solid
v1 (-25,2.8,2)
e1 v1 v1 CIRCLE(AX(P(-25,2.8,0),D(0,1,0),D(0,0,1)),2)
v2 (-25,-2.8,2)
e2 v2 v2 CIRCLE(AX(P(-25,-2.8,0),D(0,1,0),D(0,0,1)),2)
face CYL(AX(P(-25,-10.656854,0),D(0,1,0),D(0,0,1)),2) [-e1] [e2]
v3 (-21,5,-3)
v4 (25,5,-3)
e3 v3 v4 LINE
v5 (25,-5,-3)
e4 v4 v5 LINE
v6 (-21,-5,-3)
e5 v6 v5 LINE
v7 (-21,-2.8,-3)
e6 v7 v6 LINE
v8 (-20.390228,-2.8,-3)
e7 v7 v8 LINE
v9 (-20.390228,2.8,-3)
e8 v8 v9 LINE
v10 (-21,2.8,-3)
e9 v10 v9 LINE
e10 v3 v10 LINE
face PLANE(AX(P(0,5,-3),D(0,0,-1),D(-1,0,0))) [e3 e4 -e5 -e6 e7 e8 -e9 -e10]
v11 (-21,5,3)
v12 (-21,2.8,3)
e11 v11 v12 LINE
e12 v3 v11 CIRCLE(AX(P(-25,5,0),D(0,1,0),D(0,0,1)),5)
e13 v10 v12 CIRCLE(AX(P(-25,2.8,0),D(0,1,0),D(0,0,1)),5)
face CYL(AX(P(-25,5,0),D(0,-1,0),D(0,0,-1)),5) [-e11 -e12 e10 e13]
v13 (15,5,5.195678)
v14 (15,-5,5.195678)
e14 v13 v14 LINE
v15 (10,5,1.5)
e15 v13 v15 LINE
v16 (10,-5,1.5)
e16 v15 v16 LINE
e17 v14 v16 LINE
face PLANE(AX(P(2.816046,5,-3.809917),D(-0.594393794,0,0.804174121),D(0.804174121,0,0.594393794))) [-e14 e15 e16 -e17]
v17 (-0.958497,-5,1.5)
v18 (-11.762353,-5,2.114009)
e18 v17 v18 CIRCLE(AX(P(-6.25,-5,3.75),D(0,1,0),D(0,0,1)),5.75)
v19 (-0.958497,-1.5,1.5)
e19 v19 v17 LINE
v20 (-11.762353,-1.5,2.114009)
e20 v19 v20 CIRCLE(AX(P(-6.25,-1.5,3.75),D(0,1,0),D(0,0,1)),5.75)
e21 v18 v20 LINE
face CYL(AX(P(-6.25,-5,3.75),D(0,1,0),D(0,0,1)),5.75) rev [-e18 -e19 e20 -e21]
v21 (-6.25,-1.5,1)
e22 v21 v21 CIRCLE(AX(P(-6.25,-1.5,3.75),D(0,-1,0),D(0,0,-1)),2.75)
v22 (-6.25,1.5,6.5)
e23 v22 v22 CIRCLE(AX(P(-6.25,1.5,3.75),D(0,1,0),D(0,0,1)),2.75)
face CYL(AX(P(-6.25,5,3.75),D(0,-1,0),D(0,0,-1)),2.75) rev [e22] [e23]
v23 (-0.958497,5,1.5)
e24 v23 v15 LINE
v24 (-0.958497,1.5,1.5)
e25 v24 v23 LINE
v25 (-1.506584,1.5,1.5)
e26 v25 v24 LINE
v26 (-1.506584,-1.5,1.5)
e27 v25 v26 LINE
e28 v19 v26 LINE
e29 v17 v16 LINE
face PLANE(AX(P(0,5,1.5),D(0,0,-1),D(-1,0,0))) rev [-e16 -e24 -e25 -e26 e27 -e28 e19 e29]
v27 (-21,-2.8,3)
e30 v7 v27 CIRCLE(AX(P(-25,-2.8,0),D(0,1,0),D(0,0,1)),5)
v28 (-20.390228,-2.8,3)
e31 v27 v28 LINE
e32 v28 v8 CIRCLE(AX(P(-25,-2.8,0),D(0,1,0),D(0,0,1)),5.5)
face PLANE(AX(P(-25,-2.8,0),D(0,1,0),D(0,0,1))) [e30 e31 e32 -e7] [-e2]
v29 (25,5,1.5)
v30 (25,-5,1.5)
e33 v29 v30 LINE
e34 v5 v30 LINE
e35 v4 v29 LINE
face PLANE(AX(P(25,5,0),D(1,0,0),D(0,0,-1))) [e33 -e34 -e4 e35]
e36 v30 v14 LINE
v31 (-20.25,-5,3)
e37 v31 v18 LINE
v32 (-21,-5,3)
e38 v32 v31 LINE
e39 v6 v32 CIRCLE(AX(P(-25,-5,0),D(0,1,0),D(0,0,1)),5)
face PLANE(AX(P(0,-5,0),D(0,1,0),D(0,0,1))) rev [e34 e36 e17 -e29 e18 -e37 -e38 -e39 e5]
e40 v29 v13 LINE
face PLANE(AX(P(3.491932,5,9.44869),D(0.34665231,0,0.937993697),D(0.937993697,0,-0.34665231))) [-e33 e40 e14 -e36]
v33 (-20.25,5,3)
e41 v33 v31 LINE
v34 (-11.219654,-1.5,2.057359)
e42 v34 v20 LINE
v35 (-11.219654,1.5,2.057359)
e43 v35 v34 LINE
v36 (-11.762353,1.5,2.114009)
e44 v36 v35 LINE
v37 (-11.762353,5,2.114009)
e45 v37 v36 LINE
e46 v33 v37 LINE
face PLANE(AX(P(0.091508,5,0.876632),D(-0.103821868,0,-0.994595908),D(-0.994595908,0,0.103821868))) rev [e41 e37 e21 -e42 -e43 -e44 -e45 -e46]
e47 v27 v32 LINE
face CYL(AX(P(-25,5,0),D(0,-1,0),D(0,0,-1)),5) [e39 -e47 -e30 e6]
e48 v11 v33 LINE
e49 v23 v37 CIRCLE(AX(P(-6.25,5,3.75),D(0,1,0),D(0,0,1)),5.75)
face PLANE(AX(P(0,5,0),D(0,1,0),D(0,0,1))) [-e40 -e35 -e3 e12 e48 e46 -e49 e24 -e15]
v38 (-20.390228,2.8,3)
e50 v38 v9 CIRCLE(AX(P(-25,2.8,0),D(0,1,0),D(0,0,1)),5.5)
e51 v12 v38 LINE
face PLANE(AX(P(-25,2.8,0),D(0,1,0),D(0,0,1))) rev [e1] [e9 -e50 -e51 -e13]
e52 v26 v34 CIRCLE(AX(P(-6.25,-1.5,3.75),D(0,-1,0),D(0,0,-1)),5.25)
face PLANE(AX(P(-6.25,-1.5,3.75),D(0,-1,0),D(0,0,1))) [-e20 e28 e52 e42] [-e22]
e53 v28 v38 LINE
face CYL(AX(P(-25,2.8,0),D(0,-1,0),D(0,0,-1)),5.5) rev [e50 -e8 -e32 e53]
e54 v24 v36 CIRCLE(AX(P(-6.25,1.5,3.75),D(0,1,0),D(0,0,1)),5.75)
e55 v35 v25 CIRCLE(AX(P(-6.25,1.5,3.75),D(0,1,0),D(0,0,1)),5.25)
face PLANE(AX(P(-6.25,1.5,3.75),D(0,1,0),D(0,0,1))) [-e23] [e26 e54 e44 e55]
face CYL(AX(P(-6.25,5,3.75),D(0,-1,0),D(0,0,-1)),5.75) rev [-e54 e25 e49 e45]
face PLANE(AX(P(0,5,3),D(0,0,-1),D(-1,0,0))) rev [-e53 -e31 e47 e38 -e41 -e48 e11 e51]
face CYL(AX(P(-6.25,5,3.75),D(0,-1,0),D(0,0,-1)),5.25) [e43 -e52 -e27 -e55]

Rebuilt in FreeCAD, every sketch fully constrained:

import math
import FreeCAD as App
import Part
import Sketcher

V = App.Vector

doc = App.newDocument("Part")
params = doc.addObject("Spreadsheet::Sheet", "Params")
for row, (alias, value) in enumerate([
    ("sketch1_diameter", "4 mm"),
    ("sketch1_radius", "5 mm"),
    ("sketch1_diameter2", "5.5 mm"),
    ("sketch1_width", "46 mm"),
    ("sketch1_radius2", "5.25 mm"),
    ("pad1_length", "10 mm"),
    ("sketch2_diameter", "11.5 mm"),
    ("sketch3_diameter", "11 mm"),
    ("pocket2_length", "2.8 mm"),
    ("pocket2_length2", "2.8 mm"),
    ("sketch4_diameter", "4 mm"),
    ("pad2_length", "10 mm"),
], start=1):
    params.set(f"A{row}", alias)
    params.set(f"B{row}", "=" + value)
    params.setAlias(f"B{row}", alias)

body = doc.addObject("PartDesign::Body", "Body")

# Sketch on XZ plane
sketch1 = body.newObject("Sketcher::SketchObject", "Sketch")
sketch1.AttachmentSupport = (doc.getObject("XZ_Plane"), [""])
sketch1.MapMode = "FlatFace"
sketch1.addGeometry([
    Part.ArcOfCircle(Part.Circle(V(-6.2, 3.8, 0), V(0, 0, 1), 5.2), math.radians(-25), math.radians(199)),  # 0
    Part.LineSegment(V(-1.5, 1.5, 0), V(10, 1.5, 0)),  # 1
    Part.LineSegment(V(10, 1.5, 0), V(15, 5.2, 0)),  # 2
    Part.LineSegment(V(15, 5.2, 0), V(25, 1.5, 0)),  # 3
    Part.LineSegment(V(25, 1.5, 0), V(25, -3, 0)),  # 4
    Part.LineSegment(V(25, -3, 0), V(-21, -3, 0)),  # 5
    Part.ArcOfCircle(Part.Circle(V(-25, 0, 0), V(0, 0, 1), 5), math.radians(37), math.radians(323)),  # 6
    Part.LineSegment(V(-21, 3, 0), V(-20.2, 3, 0)),  # 7
    Part.LineSegment(V(-20.2, 3, 0), V(-11.2, 2.1, 0)),  # 8
    Part.Circle(V(-6.2, 3.8, 0), V(0, 0, 1), 2.8),  # 9
    Part.Circle(V(-25, 0, 0), V(0, 0, 1), 2),  # 10
], False)
sketch1.addConstraint([
    Sketcher.Constraint("Coincident", 0, 1, 1, 1),
    Sketcher.Constraint("Coincident", 1, 2, 2, 1),
    Sketcher.Constraint("Coincident", 2, 2, 3, 1),
    Sketcher.Constraint("Coincident", 3, 2, 4, 1),
    Sketcher.Constraint("Coincident", 4, 2, 5, 1),
    Sketcher.Constraint("Coincident", 5, 2, 6, 2),
    Sketcher.Constraint("Coincident", 6, 1, 7, 1),
    Sketcher.Constraint("Coincident", 7, 2, 8, 1),
    Sketcher.Constraint("Coincident", 8, 2, 0, 2),
    Sketcher.Constraint("Horizontal", 1),
    Sketcher.Constraint("Vertical", 4),
    Sketcher.Constraint("Horizontal", 5),
    Sketcher.Constraint("Horizontal", 7),
    Sketcher.Constraint("Coincident", 9, 3, 0, 3),
    Sketcher.Constraint("Coincident", 10, 3, 6, 3),
    Sketcher.Constraint("Symmetric", 5, 2, 6, 1, -1),
    Sketcher.Constraint("Horizontal", 1, 2, 3, 2),
    Sketcher.Constraint("Diameter", 10, 4.0),
    Sketcher.Constraint("Radius", 6, 5.0),
    Sketcher.Constraint("Diameter", 9, 5.5),
    Sketcher.Constraint("DistanceX", 5, 2, 5, 1, 46.0),
    Sketcher.Constraint("Radius", 0, 5.25),
    Sketcher.Constraint("DistanceY", 4, 2, 4, 1, 4.5),
    Sketcher.Constraint("DistanceX", 6, 3, -1, 1, 25.0),
    Sketcher.Constraint("DistanceX", -1, 1, 1, 2, 10.0),
    Sketcher.Constraint("DistanceX", -1, 1, 2, 2, 15.0),
    Sketcher.Constraint("DistanceX", -1, 1, 3, 2, 25.0),
    Sketcher.Constraint("DistanceX", 7, 2, 0, 3, 14.0),
    Sketcher.Constraint("DistanceX", 7, 1, 7, 2, 0.75),
    Sketcher.Constraint("DistanceY", -1, 1, 0, 3, 3.75),
    Sketcher.Constraint("Distance", 2, 6.217559),
    Sketcher.Constraint("Distance", 8, 9.079412),
])
sketch1.setExpression("Constraints[17]", "Params.sketch1_diameter")
sketch1.setExpression("Constraints[18]", "Params.sketch1_radius")
sketch1.setExpression("Constraints[19]", "Params.sketch1_diameter2")
sketch1.setExpression("Constraints[20]", "Params.sketch1_width")
sketch1.setExpression("Constraints[21]", "Params.sketch1_radius2")
pad1 = body.newObject("PartDesign::Pad", "Pad")
pad1.Profile = sketch1
pad1.setExpression("Length", "Params.pad1_length")
pad1.Midplane = True

# Sketch on XZ plane
sketch2 = body.newObject("Sketcher::SketchObject", "Sketch001")
sketch2.AttachmentSupport = (doc.getObject("XZ_Plane"), [""])
sketch2.MapMode = "FlatFace"
sketch2.AttachmentOffset = App.Placement(V(0, 0, -1.5), App.Rotation())
sketch2.addGeometry(Part.Circle(V(-6, 4, 0), V(0, 0, 1), 6), False)
sketch2.addConstraint([
    Sketcher.Constraint("Diameter", 0, 11.5),
    Sketcher.Constraint("DistanceX", 0, 3, -1, 1, 6.25),
    Sketcher.Constraint("DistanceY", -1, 1, 0, 3, 3.75),
])
sketch2.setExpression("Constraints[0]", "Params.sketch2_diameter")
pocket1 = body.newObject("PartDesign::Pocket", "Pocket")
pocket1.Profile = sketch2
pocket1.Type = "ThroughAll"

# Sketch on XZ plane
sketch3 = body.newObject("Sketcher::SketchObject", "Sketch002")
sketch3.AttachmentSupport = (doc.getObject("XZ_Plane"), [""])
sketch3.MapMode = "FlatFace"
sketch3.addGeometry(Part.Circle(V(-25, 0, 0), V(0, 0, 1), 6), False)
sketch3.addConstraint([
    Sketcher.Constraint("PointOnObject", 0, 3, -1),
    Sketcher.Constraint("Diameter", 0, 11.0),
    Sketcher.Constraint("DistanceX", 0, 3, -1, 1, 25.0),
])
sketch3.setExpression("Constraints[1]", "Params.sketch3_diameter")
pocket2 = body.newObject("PartDesign::Pocket", "Pocket001")
pocket2.Profile = sketch3
pocket2.Type = "TwoLengths"
pocket2.setExpression("Length", "Params.pocket2_length")
pocket2.setExpression("Length2", "Params.pocket2_length2")
doc.recompute()

mirrored = body.newObject("PartDesign::Mirrored", "Mirrored")
mirrored.Originals = [pocket1]
mirrored.MirrorPlane = (doc.getObject("XZ_Plane"), [""])
body.Tip = mirrored

# Sketch on XZ plane
sketch4 = body.newObject("Sketcher::SketchObject", "Sketch003")
sketch4.AttachmentSupport = (doc.getObject("XZ_Plane"), [""])
sketch4.MapMode = "FlatFace"
sketch4.AttachmentOffset = App.Placement(V(0, 0, -5), App.Rotation())
sketch4.addGeometry(Part.Circle(V(-25, 0, 0), V(0, 0, 1), 2), False)
sketch4.addConstraint([
    Sketcher.Constraint("PointOnObject", 0, 3, -1),
    Sketcher.Constraint("Diameter", 0, 4.0),
    Sketcher.Constraint("DistanceX", 0, 3, -1, 1, 25.0),
])
sketch4.setExpression("Constraints[1]", "Params.sketch4_diameter")
pad2 = body.newObject("PartDesign::Pad", "Pad001")
pad2.Profile = sketch4
pad2.setExpression("Length", "Params.pad2_length")

doc.recompute()
